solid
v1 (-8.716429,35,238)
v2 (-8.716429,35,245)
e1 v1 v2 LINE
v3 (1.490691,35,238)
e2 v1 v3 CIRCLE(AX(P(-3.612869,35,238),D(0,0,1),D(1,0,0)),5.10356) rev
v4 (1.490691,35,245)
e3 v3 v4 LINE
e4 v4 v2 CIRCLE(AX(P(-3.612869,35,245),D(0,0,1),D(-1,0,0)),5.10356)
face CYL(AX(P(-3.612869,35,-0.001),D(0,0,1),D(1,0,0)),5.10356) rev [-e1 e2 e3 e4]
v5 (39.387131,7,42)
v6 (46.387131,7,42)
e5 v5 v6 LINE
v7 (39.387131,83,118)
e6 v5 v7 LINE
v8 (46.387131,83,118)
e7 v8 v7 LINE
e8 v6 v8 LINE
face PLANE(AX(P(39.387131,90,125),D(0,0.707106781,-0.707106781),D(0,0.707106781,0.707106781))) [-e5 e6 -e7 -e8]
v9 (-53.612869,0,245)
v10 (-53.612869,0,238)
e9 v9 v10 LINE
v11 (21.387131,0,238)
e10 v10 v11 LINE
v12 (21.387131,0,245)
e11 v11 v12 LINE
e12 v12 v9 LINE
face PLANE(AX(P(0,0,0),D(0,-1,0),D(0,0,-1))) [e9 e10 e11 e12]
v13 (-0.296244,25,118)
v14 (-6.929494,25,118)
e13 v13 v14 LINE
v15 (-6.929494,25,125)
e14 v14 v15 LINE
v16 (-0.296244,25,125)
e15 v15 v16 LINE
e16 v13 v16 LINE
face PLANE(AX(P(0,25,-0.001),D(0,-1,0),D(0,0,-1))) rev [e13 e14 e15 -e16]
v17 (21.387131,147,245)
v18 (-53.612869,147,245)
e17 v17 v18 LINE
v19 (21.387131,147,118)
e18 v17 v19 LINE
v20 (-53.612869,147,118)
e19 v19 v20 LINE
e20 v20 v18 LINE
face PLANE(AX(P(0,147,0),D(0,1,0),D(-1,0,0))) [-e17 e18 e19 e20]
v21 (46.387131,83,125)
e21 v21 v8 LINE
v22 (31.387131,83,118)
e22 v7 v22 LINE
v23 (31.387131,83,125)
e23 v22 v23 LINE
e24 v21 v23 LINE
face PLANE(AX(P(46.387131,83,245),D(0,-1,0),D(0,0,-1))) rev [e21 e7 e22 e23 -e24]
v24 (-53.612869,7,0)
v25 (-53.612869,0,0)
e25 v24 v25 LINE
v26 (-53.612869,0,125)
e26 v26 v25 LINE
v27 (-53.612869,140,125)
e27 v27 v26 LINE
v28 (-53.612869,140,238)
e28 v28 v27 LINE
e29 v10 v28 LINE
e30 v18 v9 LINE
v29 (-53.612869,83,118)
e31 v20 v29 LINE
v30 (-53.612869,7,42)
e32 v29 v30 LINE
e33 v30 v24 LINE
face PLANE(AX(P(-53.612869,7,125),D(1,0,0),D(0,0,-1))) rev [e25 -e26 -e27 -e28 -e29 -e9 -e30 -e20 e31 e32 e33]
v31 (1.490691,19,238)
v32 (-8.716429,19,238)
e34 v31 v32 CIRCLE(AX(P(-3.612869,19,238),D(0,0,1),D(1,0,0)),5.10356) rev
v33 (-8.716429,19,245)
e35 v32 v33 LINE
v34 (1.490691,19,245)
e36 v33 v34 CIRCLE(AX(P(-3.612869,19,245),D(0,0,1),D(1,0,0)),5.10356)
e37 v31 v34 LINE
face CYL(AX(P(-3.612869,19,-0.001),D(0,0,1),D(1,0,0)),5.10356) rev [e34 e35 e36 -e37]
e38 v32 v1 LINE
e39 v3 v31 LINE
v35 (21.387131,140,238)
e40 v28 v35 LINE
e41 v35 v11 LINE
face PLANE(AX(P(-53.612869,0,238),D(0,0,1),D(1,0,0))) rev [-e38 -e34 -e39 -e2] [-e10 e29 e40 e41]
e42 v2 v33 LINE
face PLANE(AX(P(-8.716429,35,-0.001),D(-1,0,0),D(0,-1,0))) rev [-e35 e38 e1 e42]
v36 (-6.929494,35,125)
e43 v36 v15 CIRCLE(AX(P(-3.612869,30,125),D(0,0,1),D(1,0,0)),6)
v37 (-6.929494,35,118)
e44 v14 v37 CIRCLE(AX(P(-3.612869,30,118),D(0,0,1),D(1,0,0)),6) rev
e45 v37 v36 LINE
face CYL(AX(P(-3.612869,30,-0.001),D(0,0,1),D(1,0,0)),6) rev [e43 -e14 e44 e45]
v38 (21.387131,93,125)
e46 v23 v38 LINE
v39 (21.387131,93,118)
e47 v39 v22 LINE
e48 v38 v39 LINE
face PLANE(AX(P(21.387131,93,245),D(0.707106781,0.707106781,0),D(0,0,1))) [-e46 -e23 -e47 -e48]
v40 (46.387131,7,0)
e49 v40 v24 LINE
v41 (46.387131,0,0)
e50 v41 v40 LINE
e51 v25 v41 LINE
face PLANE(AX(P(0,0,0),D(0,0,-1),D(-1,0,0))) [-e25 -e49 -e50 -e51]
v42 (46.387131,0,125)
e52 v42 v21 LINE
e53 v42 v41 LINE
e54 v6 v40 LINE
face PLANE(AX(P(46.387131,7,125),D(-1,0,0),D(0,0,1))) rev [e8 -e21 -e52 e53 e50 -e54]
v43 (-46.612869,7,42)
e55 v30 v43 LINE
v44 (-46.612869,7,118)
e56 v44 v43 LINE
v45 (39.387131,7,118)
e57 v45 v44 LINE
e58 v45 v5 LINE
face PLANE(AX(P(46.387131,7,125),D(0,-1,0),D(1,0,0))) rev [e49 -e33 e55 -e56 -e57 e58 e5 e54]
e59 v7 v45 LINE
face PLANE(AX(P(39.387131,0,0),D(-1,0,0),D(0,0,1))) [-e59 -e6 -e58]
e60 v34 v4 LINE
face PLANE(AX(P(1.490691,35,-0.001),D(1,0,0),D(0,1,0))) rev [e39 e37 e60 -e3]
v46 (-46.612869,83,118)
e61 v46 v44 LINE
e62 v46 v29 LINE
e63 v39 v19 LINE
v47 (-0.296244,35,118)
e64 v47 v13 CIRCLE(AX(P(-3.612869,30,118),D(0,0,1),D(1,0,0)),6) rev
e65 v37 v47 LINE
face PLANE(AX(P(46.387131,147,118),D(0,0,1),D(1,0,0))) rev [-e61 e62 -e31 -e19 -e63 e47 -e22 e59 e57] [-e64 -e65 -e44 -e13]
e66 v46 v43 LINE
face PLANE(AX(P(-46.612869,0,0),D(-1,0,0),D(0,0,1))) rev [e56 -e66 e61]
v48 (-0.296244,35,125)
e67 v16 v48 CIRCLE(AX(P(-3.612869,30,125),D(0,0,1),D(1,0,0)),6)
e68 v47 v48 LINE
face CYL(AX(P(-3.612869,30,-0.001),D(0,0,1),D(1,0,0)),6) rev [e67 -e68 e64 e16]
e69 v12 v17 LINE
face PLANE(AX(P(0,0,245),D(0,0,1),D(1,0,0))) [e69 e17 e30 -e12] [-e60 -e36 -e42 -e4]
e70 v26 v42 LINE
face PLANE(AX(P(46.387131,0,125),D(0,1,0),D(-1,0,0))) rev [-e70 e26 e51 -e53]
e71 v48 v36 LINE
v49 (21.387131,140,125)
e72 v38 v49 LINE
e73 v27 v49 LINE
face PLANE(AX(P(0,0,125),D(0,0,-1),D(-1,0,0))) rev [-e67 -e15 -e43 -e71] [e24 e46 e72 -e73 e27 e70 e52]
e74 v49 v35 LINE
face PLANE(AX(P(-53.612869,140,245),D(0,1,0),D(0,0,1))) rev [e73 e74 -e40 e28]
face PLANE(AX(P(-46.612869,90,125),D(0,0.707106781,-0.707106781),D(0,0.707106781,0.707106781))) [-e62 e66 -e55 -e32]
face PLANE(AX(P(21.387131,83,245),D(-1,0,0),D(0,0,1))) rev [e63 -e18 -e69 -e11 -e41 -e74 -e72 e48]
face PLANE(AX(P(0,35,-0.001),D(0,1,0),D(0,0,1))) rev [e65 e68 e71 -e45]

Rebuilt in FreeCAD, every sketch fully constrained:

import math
import FreeCAD as App
import Part
import Sketcher

V = App.Vector


def edges_at(feature, points):
    """Names of the edges that pass closest to the given points."""
    edges = feature.Shape.Edges
    near = lambda p: min(range(len(edges)), key=lambda i: edges[i].distToShape(Part.Vertex(*p))[0])
    return sorted({f"Edge{near(p) + 1}" for p in points})


def add_polygon(sketch, points):
    """Adds a closed chain of lines whose ends are joined by coincident constraints."""
    first, n = sketch.GeometryCount, len(points)
    for a, b in zip(points, points[1:] + points[:1]):
        sketch.addGeometry(Part.LineSegment(App.Vector(*a, 0), App.Vector(*b, 0)), False)
    for i in range(n):
        sketch.addConstraint(Sketcher.Constraint("Coincident", first + i, 2, first + (i + 1) % n, 1))

doc = App.newDocument("Part")
body = doc.addObject("PartDesign::Body", "Body")

# Sketch on XY plane
sketch1 = body.newObject("Sketcher::SketchObject", "Sketch")
sketch1.AttachmentSupport = (doc.getObject("XY_Plane"), [""])
sketch1.MapMode = "FlatFace"
add_polygon(sketch1, [(-54, 7), (-54, 0), (46, 0), (46, 7)])  # lines 0-3
sketch1.addConstraint([
    Sketcher.Constraint("Vertical", 0),
    Sketcher.Constraint("Horizontal", 1),
    Sketcher.Constraint("Vertical", 2),
    Sketcher.Constraint("Horizontal", 3),
    Sketcher.Constraint("PointOnObject", 0, 2, -1),
    Sketcher.Constraint("DistanceX", 1, 1, 1, 2, 100.0),
    Sketcher.Constraint("DistanceY", 0, 2, 0, 1, 7.0),
    Sketcher.Constraint("DistanceX", 0, 2, -1, 1, 53.612869),
])
pad1 = body.newObject("PartDesign::Pad", "Pad")
pad1.Profile = sketch1
pad1.Length = 125

# Sketch on XZ plane
sketch2 = body.newObject("Sketcher::SketchObject", "Sketch001")
sketch2.AttachmentSupport = (doc.getObject("XZ_Plane"), [""])
sketch2.MapMode = "FlatFace"
sketch2.AttachmentOffset = App.Placement(V(0, 0, -7), App.Rotation())
add_polygon(sketch2, [(-54, 118), (-54, 125), (46, 125), (46, 118)])  # lines 0-3
sketch2.addConstraint([
    Sketcher.Constraint("Vertical", 0),
    Sketcher.Constraint("Horizontal", 1),
    Sketcher.Constraint("Vertical", 2),
    Sketcher.Constraint("Horizontal", 3),
    Sketcher.Constraint("DistanceX", 1, 1, 1, 2, 100.0),
    Sketcher.Constraint("DistanceY", 0, 1, 0, 2, 7.0),
    Sketcher.Constraint("DistanceY", -1, 1, 0, 2, 125.0),
    Sketcher.Constraint("DistanceX", 0, 2, -1, 1, 53.612869),
])
pad2 = body.newObject("PartDesign::Pad", "Pad001")
pad2.Profile = sketch2
pad2.Length = 140
pad2.Reversed = True

# Sketch on XY plane
sketch3 = body.newObject("Sketcher::SketchObject", "Sketch002")
sketch3.AttachmentSupport = (doc.getObject("XY_Plane"), [""])
sketch3.MapMode = "FlatFace"
sketch3.AttachmentOffset = App.Placement(V(0, 0, 125), App.Rotation())
sketch3.addGeometry([
    Part.ArcOfCircle(Part.Circle(V(-4, 30, 0), V(0, 0, 1), 6), math.radians(0), math.radians(56)),  # 0
    Part.LineSegment(V(0, 35, 0), V(-7, 35, 0)),  # 1
    Part.ArcOfCircle(Part.Circle(V(-4, 30, 0), V(0, 0, 1), 6), math.radians(124), math.radians(236)),  # 2
    Part.LineSegment(V(-7, 25, 0), V(0, 25, 0)),  # 3
    Part.ArcOfCircle(Part.Circle(V(-4, 30, 0), V(0, 0, 1), 6), math.radians(-56), math.radians(0)),  # 4
], False)
sketch3.addConstraint([
    Sketcher.Constraint("Coincident", 0, 2, 1, 1),
    Sketcher.Constraint("Coincident", 1, 2, 2, 1),
    Sketcher.Constraint("Coincident", 2, 2, 3, 1),
    Sketcher.Constraint("Coincident", 3, 2, 4, 1),
    Sketcher.Constraint("Tangent", 4, 2, 0, 1),
    Sketcher.Constraint("Horizontal", 1),
    Sketcher.Constraint("Horizontal", 3),
    Sketcher.Constraint("Coincident", 2, 3, 0, 3),
    Sketcher.Constraint("Equal", 0, 2),
    Sketcher.Constraint("Equal", 2, 4),
    Sketcher.Constraint("Horizontal", 2, 3, 4, 2),
    Sketcher.Constraint("Vertical", 1, 2, 2, 2),
    Sketcher.Constraint("Radius", 0, 6.0),
    Sketcher.Constraint("DistanceY", -1, 1, 0, 3, 30.0),
    Sketcher.Constraint("DistanceY", -1, 1, 0, 2, 35.0),
    Sketcher.Constraint("DistanceX", 0, 3, -1, 1, 3.612869),
])
pocket1 = body.newObject("PartDesign::Pocket", "Pocket")
pocket1.Profile = sketch3
pocket1.Type = "UpToFirst"

# Sketch on YZ plane
sketch4 = body.newObject("Sketcher::SketchObject", "Sketch003")
sketch4.AttachmentSupport = (doc.getObject("YZ_Plane"), [""])
sketch4.MapMode = "FlatFace"
sketch4.AttachmentOffset = App.Placement(V(0, 0, -53.612869), App.Rotation())
add_polygon(sketch4, [(0, 125), (90, 125), (0, 35)])  # lines 0-2
sketch4.addConstraint([
    Sketcher.Constraint("Horizontal", 0),
    Sketcher.Constraint("Vertical", 2),
    Sketcher.Constraint("PointOnObject", 1, 2, -2),
    Sketcher.Constraint("Equal", 0, 2),
    Sketcher.Constraint("DistanceX", 0, 1, 0, 2, 90.0),
    Sketcher.Constraint("DistanceY", -1, 1, 0, 2, 125.0),
])
pad3 = body.newObject("PartDesign::Pad", "Pad002")
pad3.Profile = sketch4
pad3.Length = 7

# Sketch on YZ plane
sketch5 = body.newObject("Sketcher::SketchObject", "Sketch004")
sketch5.AttachmentSupport = (doc.getObject("YZ_Plane"), [""])
sketch5.MapMode = "FlatFace"
sketch5.AttachmentOffset = App.Placement(V(0, 0, 46.387131), App.Rotation())
add_polygon(sketch5, [(90, 125), (0, 125), (0, 35)])  # lines 0-2
sketch5.addConstraint([
    Sketcher.Constraint("Horizontal", 0),
    Sketcher.Constraint("Vertical", 1),
    Sketcher.Constraint("PointOnObject", 0, 2, -2),
    Sketcher.Constraint("Equal", 0, 1),
    Sketcher.Constraint("DistanceX", 0, 2, 0, 1, 90.0),
    Sketcher.Constraint("DistanceY", -1, 1, 0, 2, 125.0),
])
pad4 = body.newObject("PartDesign::Pad", "Pad003")
pad4.Profile = sketch5
pad4.Length = 7
pad4.Reversed = True

# Sketch on XY plane
sketch6 = body.newObject("Sketcher::SketchObject", "Sketch005")
sketch6.AttachmentSupport = (doc.getObject("XY_Plane"), [""])
sketch6.MapMode = "FlatFace"
sketch6.AttachmentOffset = App.Placement(V(0, 0, 125), App.Rotation())
add_polygon(sketch6, [(-54, 147), (-54, 140), (46, 140), (46, 147)])  # lines 0-3
sketch6.addConstraint([
    Sketcher.Constraint("Vertical", 0),
    Sketcher.Constraint("Horizontal", 1),
    Sketcher.Constraint("Vertical", 2),
    Sketcher.Constraint("Horizontal", 3),
    Sketcher.Constraint("DistanceX", 1, 1, 1, 2, 100.0),
    Sketcher.Constraint("DistanceY", 0, 2, 0, 1, 7.0),
    Sketcher.Constraint("DistanceY", -1, 1, 0, 2, 140.0),
    Sketcher.Constraint("DistanceX", 0, 2, -1, 1, 53.612869),
])
pad5 = body.newObject("PartDesign::Pad", "Pad004")
pad5.Profile = sketch6
pad5.Length = 120

# Sketch on XZ plane
sketch7 = body.newObject("Sketcher::SketchObject", "Sketch006")
sketch7.AttachmentSupport = (doc.getObject("XZ_Plane"), [""])
sketch7.MapMode = "FlatFace"
sketch7.AttachmentOffset = App.Placement(V(0, 0, -140), App.Rotation())
add_polygon(sketch7, [(-54, 245), (-54, 238), (46, 238), (46, 245)])  # lines 0-3
sketch7.addConstraint([
    Sketcher.Constraint("Vertical", 0),
    Sketcher.Constraint("Horizontal", 1),
    Sketcher.Constraint("Vertical", 2),
    Sketcher.Constraint("Horizontal", 3),
    Sketcher.Constraint("DistanceX", 1, 1, 1, 2, 100.0),
    Sketcher.Constraint("DistanceY", 0, 2, 0, 1, 7.0),
    Sketcher.Constraint("DistanceY", -1, 1, 0, 2, 238.0),
    Sketcher.Constraint("DistanceX", 0, 2, -1, 1, 53.612869),
])
pad6 = body.newObject("PartDesign::Pad", "Pad005")
pad6.Profile = sketch7
pad6.Length = 140

# Sketch on XY plane
sketch8 = body.newObject("Sketcher::SketchObject", "Sketch007")
sketch8.AttachmentSupport = (doc.getObject("XY_Plane"), [""])
sketch8.MapMode = "FlatFace"
sketch8.AttachmentOffset = App.Placement(V(0, 0, 245), App.Rotation())
sketch8.addGeometry([
    Part.LineSegment(V(-9, 35, 0), V(-9, 19, 0)),
    Part.ArcOfCircle(Part.Circle(V(-4, 19, 0), V(0, 0, 1), 5), math.radians(180), math.radians(360)),
    Part.LineSegment(V(1, 19, 0), V(1, 35, 0)),
    Part.ArcOfCircle(Part.Circle(V(-4, 35, 0), V(0, 0, 1), 5), math.radians(0), math.radians(180)),
], False)
sketch8.addConstraint([
    Sketcher.Constraint("Tangent", 0, 2, 1, 1),
    Sketcher.Constraint("Tangent", 1, 2, 2, 1),
    Sketcher.Constraint("Tangent", 2, 2, 3, 1),
    Sketcher.Constraint("Tangent", 3, 2, 0, 1),
    Sketcher.Constraint("Vertical", 0),
    Sketcher.Constraint("Vertical", 2),
    Sketcher.Constraint("DistanceY", 0, 2, 0, 1, 16.0),
    Sketcher.Constraint("DistanceY", -1, 1, 1, 3, 19.0),
    Sketcher.Constraint("Radius", 1, 5.10356),
    Sketcher.Constraint("DistanceX", 1, 3, -1, 1, 3.612869),
])
pocket2 = body.newObject("PartDesign::Pocket", "Pocket001")
pocket2.Profile = sketch8
pocket2.Type = "UpToFirst"

# Sketch on XY plane
sketch9 = body.newObject("Sketcher::SketchObject", "Sketch008")
sketch9.AttachmentSupport = (doc.getObject("XY_Plane"), [""])
sketch9.MapMode = "FlatFace"
sketch9.AttachmentOffset = App.Placement(V(0, 0, 118), App.Rotation())
add_polygon(sketch9, [(46, 147), (46, 83), (21, 83), (21, 147)])  # lines 0-3
sketch9.addConstraint([
    Sketcher.Constraint("Vertical", 0),
    Sketcher.Constraint("Horizontal", 1),
    Sketcher.Constraint("Vertical", 2),
    Sketcher.Constraint("Horizontal", 3),
    Sketcher.Constraint("DistanceX", 1, 2, 1, 1, 25.0),
    Sketcher.Constraint("DistanceY", 0, 2, 0, 1, 64.0),
    Sketcher.Constraint("DistanceY", -1, 1, 0, 2, 83.0),
    Sketcher.Constraint("DistanceX", -1, 1, 0, 2, 46.387131),
])
pocket3 = body.newObject("PartDesign::Pocket", "Pocket002")
pocket3.Profile = sketch9
pocket3.Type = "ThroughAll"
pocket3.Reversed = True
doc.recompute()

chamfer = body.newObject("PartDesign::Chamfer", "Chamfer")
chamfer.Base = (pocket3, edges_at(pocket3, [(21.387, 83, 121.5)]))
chamfer.Size = 10

# Sketch on XY plane
sketch10 = body.newObject("Sketcher::SketchObject", "Sketch009")
sketch10.AttachmentSupport = (doc.getObject("XY_Plane"), [""])
sketch10.MapMode = "FlatFace"
sketch10.AttachmentOffset = App.Placement(V(0, 0, 245), App.Rotation())
add_polygon(sketch10, [(21, 83), (21, 0), (46, 0), (46, 83)])  # lines 0-3
sketch10.addConstraint([
    Sketcher.Constraint("Vertical", 0),
    Sketcher.Constraint("Horizontal", 1),
    Sketcher.Constraint("Vertical", 2),
    Sketcher.Constraint("Horizontal", 3),
    Sketcher.Constraint("PointOnObject", 0, 2, -1),
    Sketcher.Constraint("DistanceX", 1, 1, 1, 2, 25.0),
    Sketcher.Constraint("DistanceY", 0, 2, 0, 1, 83.0),
    Sketcher.Constraint("DistanceX", -1, 1, 0, 2, 21.387131),
])
pocket4 = body.newObject("PartDesign::Pocket", "Pocket003")
pocket4.Profile = sketch10
pocket4.Type = "UpToFirst"

doc.recompute()
